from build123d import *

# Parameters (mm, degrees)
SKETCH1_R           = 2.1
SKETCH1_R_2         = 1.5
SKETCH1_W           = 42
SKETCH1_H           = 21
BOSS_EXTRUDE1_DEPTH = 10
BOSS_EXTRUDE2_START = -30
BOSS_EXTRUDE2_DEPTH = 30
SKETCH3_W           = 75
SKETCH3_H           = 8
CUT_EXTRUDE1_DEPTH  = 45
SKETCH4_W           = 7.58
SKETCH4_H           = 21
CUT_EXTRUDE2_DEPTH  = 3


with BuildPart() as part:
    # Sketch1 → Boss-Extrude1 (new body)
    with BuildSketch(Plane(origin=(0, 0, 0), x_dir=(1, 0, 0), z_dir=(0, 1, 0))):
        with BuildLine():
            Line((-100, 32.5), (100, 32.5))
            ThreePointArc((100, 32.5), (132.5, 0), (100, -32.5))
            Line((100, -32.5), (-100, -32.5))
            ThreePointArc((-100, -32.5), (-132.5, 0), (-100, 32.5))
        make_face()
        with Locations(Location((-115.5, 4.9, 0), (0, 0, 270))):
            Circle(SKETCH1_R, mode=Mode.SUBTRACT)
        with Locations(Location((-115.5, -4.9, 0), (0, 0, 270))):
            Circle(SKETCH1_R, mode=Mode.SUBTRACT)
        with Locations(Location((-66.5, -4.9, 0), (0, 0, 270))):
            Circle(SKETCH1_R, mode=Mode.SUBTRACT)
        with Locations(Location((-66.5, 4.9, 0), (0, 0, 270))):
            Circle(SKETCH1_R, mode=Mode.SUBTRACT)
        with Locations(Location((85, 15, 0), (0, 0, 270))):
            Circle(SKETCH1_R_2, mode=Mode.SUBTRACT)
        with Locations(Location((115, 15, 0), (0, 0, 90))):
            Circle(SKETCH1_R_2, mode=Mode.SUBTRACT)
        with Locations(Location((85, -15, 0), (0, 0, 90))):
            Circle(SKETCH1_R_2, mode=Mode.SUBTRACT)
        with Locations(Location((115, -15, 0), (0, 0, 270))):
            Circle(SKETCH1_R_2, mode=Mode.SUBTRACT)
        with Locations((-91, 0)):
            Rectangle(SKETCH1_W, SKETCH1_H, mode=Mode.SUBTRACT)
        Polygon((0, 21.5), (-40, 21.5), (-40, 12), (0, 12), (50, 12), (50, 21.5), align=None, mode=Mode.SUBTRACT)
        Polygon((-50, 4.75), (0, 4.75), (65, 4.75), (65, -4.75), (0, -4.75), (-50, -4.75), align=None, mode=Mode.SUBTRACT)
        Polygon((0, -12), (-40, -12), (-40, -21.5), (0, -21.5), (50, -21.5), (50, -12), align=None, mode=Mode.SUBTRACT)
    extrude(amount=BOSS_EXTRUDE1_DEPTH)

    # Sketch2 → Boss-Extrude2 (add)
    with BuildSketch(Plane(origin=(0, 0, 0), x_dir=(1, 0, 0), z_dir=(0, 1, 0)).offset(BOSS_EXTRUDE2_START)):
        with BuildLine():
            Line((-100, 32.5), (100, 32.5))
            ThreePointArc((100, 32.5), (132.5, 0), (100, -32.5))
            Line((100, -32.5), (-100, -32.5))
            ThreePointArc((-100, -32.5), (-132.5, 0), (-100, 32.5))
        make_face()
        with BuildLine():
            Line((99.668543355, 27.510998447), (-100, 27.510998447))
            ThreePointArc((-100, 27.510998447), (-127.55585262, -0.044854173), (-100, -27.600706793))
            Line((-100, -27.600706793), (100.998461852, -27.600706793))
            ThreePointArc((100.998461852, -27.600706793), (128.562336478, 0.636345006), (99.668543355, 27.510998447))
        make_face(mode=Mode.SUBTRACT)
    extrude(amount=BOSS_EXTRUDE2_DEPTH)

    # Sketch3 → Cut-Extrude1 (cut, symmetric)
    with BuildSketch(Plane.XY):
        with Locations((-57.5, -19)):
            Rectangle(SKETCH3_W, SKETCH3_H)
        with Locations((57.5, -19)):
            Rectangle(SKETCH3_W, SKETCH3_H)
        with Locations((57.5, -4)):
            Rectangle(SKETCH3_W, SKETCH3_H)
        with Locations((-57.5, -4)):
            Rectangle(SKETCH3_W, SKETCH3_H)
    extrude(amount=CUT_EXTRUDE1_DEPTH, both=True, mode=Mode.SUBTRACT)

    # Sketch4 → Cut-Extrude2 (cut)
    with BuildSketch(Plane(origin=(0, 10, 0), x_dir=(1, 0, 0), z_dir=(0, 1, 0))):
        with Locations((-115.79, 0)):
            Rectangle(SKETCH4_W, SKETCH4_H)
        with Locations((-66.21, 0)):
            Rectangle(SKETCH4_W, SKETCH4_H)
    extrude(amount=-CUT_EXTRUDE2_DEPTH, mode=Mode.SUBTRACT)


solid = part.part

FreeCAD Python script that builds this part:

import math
import FreeCAD as App
import Part
import Sketcher
from FreeCAD import Vector


def add_polygon(sketch, points):
    """Adds a closed chain of lines whose ends are joined by coincident constraints."""
    first, n = sketch.GeometryCount, len(points)
    for a, b in zip(points, points[1:] + points[:1]):
        sketch.addGeometry(Part.LineSegment(App.Vector(*a, 0), App.Vector(*b, 0)), False)
    for i in range(n):
        sketch.addConstraint(Sketcher.Constraint("Coincident", first + i, 2, first + (i + 1) % n, 1))

doc = App.newDocument("Part")
params = doc.addObject("Spreadsheet::Sheet", "Params")
for row, (alias, value) in enumerate([
    ("sketch1_diameter", "3 mm"),
    ("sketch1_diameter2", "4.2 mm"),
    ("sketch1_radius", "32.5 mm"),
    ("sketch1_width", "200 mm"),
    ("sketch1_width2", "90 mm"),
    ("pad1_length", "10 mm"),
    ("sketch2_radius", "32.5 mm"),
    ("sketch2_width", "200 mm"),
    ("pad2_length", "30 mm"),
    ("sketch3_width", "75 mm"),
    ("sketch3_height", "8 mm"),
    ("pocket1_length", "90 mm"),
    ("sketch4_height", "21 mm"),
    ("sketch4_width", "7.58 mm"),
    ("pocket2_length", "3 mm"),
], start=1):
    params.set(f"A{row}", alias)
    params.set(f"B{row}", "=" + value)
    params.setAlias(f"B{row}", alias)

body = doc.addObject("PartDesign::Body", "Body")

# Sketch on XZ plane
sketch1 = body.newObject("Sketcher::SketchObject", "Sketch")
sketch1.AttachmentSupport = (doc.getObject("XZ_Plane"), [""])
sketch1.MapMode = "FlatFace"
sketch1.addGeometry(Part.LineSegment(Vector(100, -32.5, 0), Vector(-100, -32.5, 0)), False)  # 0
sketch1.addGeometry(Part.ArcOfCircle(Part.Circle(Vector(-100, 0, 0), Vector(0, 0, 1), 32.5), math.radians(90), math.radians(270)), False)  # 1
sketch1.addGeometry(Part.LineSegment(Vector(-100, 32.5, 0), Vector(100, 32.5, 0)), False)  # 2
sketch1.addGeometry(Part.ArcOfCircle(Part.Circle(Vector(100, 0, 0), Vector(0, 0, 1), 32.5), math.radians(-90), math.radians(90)), False)  # 3
sketch1.addGeometry(Part.Circle(Vector(115, 15, 0), Vector(0, 0, 1), 1.5), False)  # 4
sketch1.addGeometry(Part.Circle(Vector(85, 15, 0), Vector(0, 0, 1), 1.5), False)  # 5
add_polygon(sketch1, [(50, 12), (50, 21.5), (-40, 21.5), (-40, 12)])  # lines 6-9
sketch1.addGeometry(Part.Circle(Vector(-66.5, 4.9, 0), Vector(0, 0, 1), 2.1), False)  # 10
sketch1.addGeometry(Part.Circle(Vector(-115.5, 4.9, 0), Vector(0, 0, 1), 2.1), False)  # 11
add_polygon(sketch1, [(-50, -4.75), (65, -4.75), (65, 4.75), (-50, 4.75)])  # lines 12-15
sketch1.addGeometry(Part.Circle(Vector(115, -15, 0), Vector(0, 0, 1), 1.5), False)  # 16
sketch1.addGeometry(Part.Circle(Vector(85, -15, 0), Vector(0, 0, 1), 1.5), False)  # 17
add_polygon(sketch1, [(50, -21.5), (50, -12), (-40, -12), (-40, -21.5)])  # lines 18-21
sketch1.addGeometry(Part.Circle(Vector(-66.5, -4.9, 0), Vector(0, 0, 1), 2.1), False)  # 22
add_polygon(sketch1, [(-112, 10.5), (-112, -10.5), (-70, -10.5), (-70, 10.5)])  # lines 23-26
sketch1.addGeometry(Part.Circle(Vector(-115.5, -4.9, 0), Vector(0, 0, 1), 2.1), False)  # 27
sketch1.addConstraint([
    Sketcher.Constraint("Tangent", 0, 2, 1, 2),
    Sketcher.Constraint("Tangent", 1, 1, 2, 1),
    Sketcher.Constraint("Tangent", 2, 2, 3, 2),
    Sketcher.Constraint("Tangent", 3, 1, 0, 1),
    Sketcher.Constraint("Horizontal", 0),
    Sketcher.Constraint("Horizontal", 2),
    Sketcher.Constraint("Vertical", 6),
    Sketcher.Constraint("Horizontal", 7),
    Sketcher.Constraint("Vertical", 8),
    Sketcher.Constraint("Horizontal", 9),
    Sketcher.Constraint("Horizontal", 12),
    Sketcher.Constraint("Vertical", 13),
    Sketcher.Constraint("Horizontal", 14),
    Sketcher.Constraint("Vertical", 15),
    Sketcher.Constraint("Vertical", 18),
    Sketcher.Constraint("Horizontal", 19),
    Sketcher.Constraint("Vertical", 20),
    Sketcher.Constraint("Horizontal", 21),
    Sketcher.Constraint("Vertical", 23),
    Sketcher.Constraint("Horizontal", 24),
    Sketcher.Constraint("Vertical", 25),
    Sketcher.Constraint("Horizontal", 26),
    Sketcher.Constraint("Equal", 4, 5),
    Sketcher.Constraint("Equal", 10, 11),
    Sketcher.Constraint("Equal", 5, 16),
    Sketcher.Constraint("Equal", 16, 17),
    Sketcher.Constraint("Equal", 11, 22),
    Sketcher.Constraint("Equal", 22, 27),
    Sketcher.Constraint("Symmetric", 1, 3, 3, 3, -1, 1),
    Sketcher.Constraint("Symmetric", 4, 3, 16, 3, -1),
    Sketcher.Constraint("Symmetric", 5, 3, 17, 3, -1),
    Sketcher.Constraint("Symmetric", 10, 3, 22, 3, -1),
    Sketcher.Constraint("Symmetric", 11, 3, 27, 3, -1),
    Sketcher.Constraint("Symmetric", 9, 2, 18, 2, -1),
    Sketcher.Constraint("Symmetric", 7, 2, 20, 2, -1),
    Sketcher.Constraint("Horizontal", 4, 3, 5, 3),
    Sketcher.Constraint("Horizontal", 10, 3, 11, 3),
    Sketcher.Constraint("Equal", 8, 13),
    Sketcher.Constraint("Diameter", 4, 3.0),
    Sketcher.Constraint("Diameter", 10, 4.2),
    Sketcher.Constraint("Radius", 1, 32.5),
    Sketcher.Constraint("DistanceX", 0, 2, 0, 1, 200.0),
    Sketcher.Constraint("DistanceX", 7, 2, 7, 1, 90.0),
    Sketcher.Constraint("DistanceX", 12, 1, 12, 2, 115.0),
    Sketcher.Constraint("DistanceX", 24, 1, 24, 2, 42.0),
    Sketcher.Constraint("DistanceY", 23, 2, 23, 1, 21.0),
    Sketcher.Constraint("DistanceY", 6, 1, 6, 2, 9.5),
    Sketcher.Constraint("DistanceX", -1, 1, 4, 3, 115.0),
    Sketcher.Constraint("DistanceY", -1, 1, 4, 3, 15.0),
    Sketcher.Constraint("DistanceX", -1, 1, 5, 3, 85.0),
    Sketcher.Constraint("DistanceX", -1, 1, 6, 2, 50.0),
    Sketcher.Constraint("DistanceY", -1, 1, 8, 2, 12.0),
    Sketcher.Constraint("DistanceX", -1, 1, 12, 2, 65.0),
    Sketcher.Constraint("DistanceX", 23, 2, -1, 1, 112.0),
    Sketcher.Constraint("DistanceX", 11, 3, 10, 3, 49.0),
    Sketcher.Constraint("DistanceY", 0, 2, 23, 2, 22.0),
    Sketcher.Constraint("DistanceX", 10, 3, -1, 1, 66.5),
    Sketcher.Constraint("DistanceY", -1, 1, 10, 3, 4.9),
    Sketcher.Constraint("DistanceY", 12, 2, -1, 1, 4.75),
])
sketch1.setExpression("Constraints[54]", "Params.sketch1_diameter")
sketch1.setExpression("Constraints[55]", "Params.sketch1_diameter2")
sketch1.setExpression("Constraints[56]", "Params.sketch1_radius")
sketch1.setExpression("Constraints[57]", "Params.sketch1_width")
sketch1.setExpression("Constraints[58]", "Params.sketch1_width2")
pad1 = body.newObject("PartDesign::Pad", "Pad")
pad1.Profile = sketch1
pad1.setExpression("Length", "Params.pad1_length")
pad1.Reversed = True

# Sketch on XZ plane
sketch2 = body.newObject("Sketcher::SketchObject", "Sketch001")
sketch2.AttachmentSupport = (doc.getObject("XZ_Plane"), [""])
sketch2.MapMode = "FlatFace"
sketch2.AttachmentOffset = App.Placement(Vector(0, 0, 30), App.Rotation())
sketch2.addGeometry([
    Part.LineSegment(Vector(100, -32.5, 0), Vector(-100, -32.5, 0)),  # 0
    Part.ArcOfCircle(Part.Circle(Vector(-100, 0, 0), Vector(0, 0, 1), 32.5), math.radians(90), math.radians(270)),  # 1
    Part.LineSegment(Vector(-100, 32.5, 0), Vector(100, 32.5, 0)),  # 2
    Part.ArcOfCircle(Part.Circle(Vector(100, 0, 0), Vector(0, 0, 1), 32.5), math.radians(-90), math.radians(90)),  # 3
    Part.ArcOfCircle(Part.Circle(Vector(100.998462, 0.028808, 0), Vector(0, 0, 1), 27.571899), math.radians(-92.76471), math.radians(90)),  # 4
    Part.LineSegment(Vector(100.998462, 27.600707, 0), Vector(-100, 27.600707, 0)),  # 5
    Part.ArcOfCircle(Part.Circle(Vector(-100, 0.044854, 0), Vector(0, 0, 1), 27.555853), math.radians(90), math.radians(270)),  # 6
    Part.LineSegment(Vector(-100, -27.510998, 0), Vector(99.668543, -27.510998, 0)),  # 7
], False)
sketch2.addConstraint([
    Sketcher.Constraint("Tangent", 0, 2, 1, 2),
    Sketcher.Constraint("Tangent", 1, 1, 2, 1),
    Sketcher.Constraint("Tangent", 2, 2, 3, 2),
    Sketcher.Constraint("Tangent", 3, 1, 0, 1),
    Sketcher.Constraint("Tangent", 4, 2, 5, 1),
    Sketcher.Constraint("Tangent", 5, 2, 6, 1),
    Sketcher.Constraint("Tangent", 6, 2, 7, 1),
    Sketcher.Constraint("Coincident", 7, 2, 4, 1),
    Sketcher.Constraint("Horizontal", 0),
    Sketcher.Constraint("Horizontal", 2),
    Sketcher.Constraint("Horizontal", 5),
    Sketcher.Constraint("Horizontal", 7),
    Sketcher.Constraint("Symmetric", 1, 3, 3, 3, -1, 1),
    Sketcher.Constraint("Vertical", 1, 3, 6, 3),
    Sketcher.Constraint("Radius", 1, 32.5),
    Sketcher.Constraint("DistanceX", 0, 2, 0, 1, 200.0),
    Sketcher.Constraint("Radius", 4, 27.571899),
    Sketcher.Constraint("DistanceY", 6, 2, -1, 1, 27.510998),
    Sketcher.Constraint("Radius", 6, 27.555853),
    Sketcher.Constraint("DistanceX", 5, 2, 5, 1, 200.998462),
])
sketch2.setExpression("Constraints[14]", "Params.sketch2_radius")
sketch2.setExpression("Constraints[15]", "Params.sketch2_width")
pad2 = body.newObject("PartDesign::Pad", "Pad001")
pad2.Profile = sketch2
pad2.setExpression("Length", "Params.pad2_length")
pad2.Reversed = True

# Sketch on XY plane
sketch3 = body.newObject("Sketcher::SketchObject", "Sketch002")
sketch3.AttachmentSupport = (doc.getObject("XY_Plane"), [""])
sketch3.MapMode = "FlatFace"
add_polygon(sketch3, [(-95, -15), (-95, -23), (-20, -23), (-20, -15)])  # lines 0-3
add_polygon(sketch3, [(20, -15), (20, -23), (95, -23), (95, -15)])  # lines 4-7
add_polygon(sketch3, [(20, 0), (20, -8), (95, -8), (95, 0)])  # lines 8-11
add_polygon(sketch3, [(-95, 0), (-95, -8), (-20, -8), (-20, 0)])  # lines 12-15
sketch3.addConstraint([
    Sketcher.Constraint("Vertical", 0),
    Sketcher.Constraint("Horizontal", 1),
    Sketcher.Constraint("Vertical", 2),
    Sketcher.Constraint("Horizontal", 3),
    Sketcher.Constraint("Vertical", 4),
    Sketcher.Constraint("Horizontal", 5),
    Sketcher.Constraint("Vertical", 6),
    Sketcher.Constraint("Horizontal", 7),
    Sketcher.Constraint("Vertical", 8),
    Sketcher.Constraint("Horizontal", 9),
    Sketcher.Constraint("Vertical", 10),
    Sketcher.Constraint("Horizontal", 11),
    Sketcher.Constraint("Vertical", 12),
    Sketcher.Constraint("Horizontal", 13),
    Sketcher.Constraint("Vertical", 14),
    Sketcher.Constraint("Horizontal", 15),
    Sketcher.Constraint("Symmetric", 11, 2, 14, 2, -1, 1),
    Sketcher.Constraint("Symmetric", 1, 2, 4, 2, -2),
    Sketcher.Constraint("Symmetric", 3, 2, 6, 2, -2),
    Sketcher.Constraint("Symmetric", 9, 2, 12, 2, -2),
    Sketcher.Constraint("PointOnObject", 10, 2, -1),
    Sketcher.Constraint("Vertical", 7, 2, 8, 2),
    Sketcher.Constraint("Vertical", 6, 2, 9, 2),
    Sketcher.Constraint("Equal", 6, 8),
    Sketcher.Constraint("DistanceX", 1, 1, 1, 2, 75.0),
    Sketcher.Constraint("DistanceY", 0, 2, 0, 1, 8.0),
    Sketcher.Constraint("DistanceX", 0, 2, -1, 1, 95.0),
    Sketcher.Constraint("DistanceY", 0, 2, -1, 1, 23.0),
])
sketch3.setExpression("Constraints[40]", "Params.sketch3_width")
sketch3.setExpression("Constraints[41]", "Params.sketch3_height")
pocket1 = body.newObject("PartDesign::Pocket", "Pocket")
pocket1.Profile = sketch3
pocket1.setExpression("Length", "Params.pocket1_length")
pocket1.Midplane = True

# Sketch on XZ plane
sketch4 = body.newObject("Sketcher::SketchObject", "Sketch003")
sketch4.AttachmentSupport = (doc.getObject("XZ_Plane"), [""])
sketch4.MapMode = "FlatFace"
sketch4.AttachmentOffset = App.Placement(Vector(0, 0, -10), App.Rotation())
add_polygon(sketch4, [(-119.58, -10.5), (-119.58, 10.5), (-112, 10.5), (-112, -10.5)])  # lines 0-3
add_polygon(sketch4, [(-70, -10.5), (-70, 10.5), (-62.42, 10.5), (-62.42, -10.5)])  # lines 4-7
sketch4.addConstraint([
    Sketcher.Constraint("Vertical", 0),
    Sketcher.Constraint("Horizontal", 1),
    Sketcher.Constraint("Vertical", 2),
    Sketcher.Constraint("Horizontal", 3),
    Sketcher.Constraint("Vertical", 4),
    Sketcher.Constraint("Horizontal", 5),
    Sketcher.Constraint("Vertical", 6),
    Sketcher.Constraint("Horizontal", 7),
    Sketcher.Constraint("Horizontal", 1, 2, 4, 2),
    Sketcher.Constraint("Horizontal", 3, 2, 6, 2),
    Sketcher.Constraint("Equal", 3, 5),
    Sketcher.Constraint("DistanceY", 0, 1, 0, 2, 21.0),
    Sketcher.Constraint("DistanceX", 1, 2, -1, 1, 112.0),
    Sketcher.Constraint("DistanceX", 4, 2, -1, 1, 70.0),
    Sketcher.Constraint("DistanceX", 1, 1, 1, 2, 7.58),
    Sketcher.Constraint("DistanceY", -1, 1, 0, 2, 10.5),
])
sketch4.setExpression("Constraints[19]", "Params.sketch4_height")
sketch4.setExpression("Constraints[22]", "Params.sketch4_width")
pocket2 = body.newObject("PartDesign::Pocket", "Pocket001")
pocket2.Profile = sketch4
pocket2.setExpression("Length", "Params.pocket2_length")
pocket2.Reversed = True

doc.recompute()
